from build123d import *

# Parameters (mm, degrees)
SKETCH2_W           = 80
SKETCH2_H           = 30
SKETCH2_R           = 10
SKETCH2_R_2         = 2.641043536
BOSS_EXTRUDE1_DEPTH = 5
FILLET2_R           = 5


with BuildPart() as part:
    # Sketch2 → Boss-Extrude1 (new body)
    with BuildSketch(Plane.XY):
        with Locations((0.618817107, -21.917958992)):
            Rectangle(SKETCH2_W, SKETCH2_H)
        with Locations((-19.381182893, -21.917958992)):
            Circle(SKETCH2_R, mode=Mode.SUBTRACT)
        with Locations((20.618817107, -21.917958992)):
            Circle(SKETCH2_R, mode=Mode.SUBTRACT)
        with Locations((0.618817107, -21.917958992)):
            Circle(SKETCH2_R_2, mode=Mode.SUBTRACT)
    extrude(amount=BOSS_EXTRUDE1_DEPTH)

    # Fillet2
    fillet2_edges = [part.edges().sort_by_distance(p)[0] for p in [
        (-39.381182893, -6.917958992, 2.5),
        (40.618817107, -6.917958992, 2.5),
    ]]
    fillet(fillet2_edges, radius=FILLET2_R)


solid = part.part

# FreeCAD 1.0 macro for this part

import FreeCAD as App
import Part
import Sketcher

V = App.Vector


def edges_at(feature, points):
    """Names of the edges that pass closest to the given points."""
    edges = feature.Shape.Edges
    near = lambda p: min(range(len(edges)), key=lambda i: edges[i].distToShape(Part.Vertex(*p))[0])
    return sorted({f"Edge{near(p) + 1}" for p in points})


def add_polygon(sketch, points):
    """Adds a closed chain of lines whose ends are joined by coincident constraints."""
    first, n = sketch.GeometryCount, len(points)
    for a, b in zip(points, points[1:] + points[:1]):
        sketch.addGeometry(Part.LineSegment(App.Vector(*a, 0), App.Vector(*b, 0)), False)
    for i in range(n):
        sketch.addConstraint(Sketcher.Constraint("Coincident", first + i, 2, first + (i + 1) % n, 1))

doc = App.newDocument("Part")
params = doc.addObject("Spreadsheet::Sheet", "Params")
for row, (alias, value) in enumerate([
    ("sketch1_diameter", "20 mm"),
    ("sketch1_width", "80 mm"),
    ("sketch1_height", "30 mm"),
    ("pad1_length", "5 mm"),
    ("fillet_radius", "5 mm"),
], start=1):
    params.set(f"A{row}", alias)
    params.set(f"B{row}", "=" + value)
    params.setAlias(f"B{row}", alias)

body = doc.addObject("PartDesign::Body", "Body")

# Sketch on XY plane
sketch1 = doc.addObject("Sketcher::SketchObject", "Sketch")
body.addObject(sketch1)
sketch1.AttachmentSupport = (doc.XY_Plane, [""])
sketch1.MapMode = "FlatFace"
add_polygon(sketch1, [(-39.4, -6.9), (-39.4, -36.9), (40.6, -36.9), (40.6, -6.9)])  # lines 0-3
sketch1.addGeometry(Part.Circle(V(-19.4, -21.9, 0), V(0, 0, 1), 10), False)  # 4
sketch1.addGeometry(Part.Circle(V(0.6, -21.9, 0), V(0, 0, 1), 2.6), False)  # 5
sketch1.addGeometry(Part.Circle(V(20.6, -21.9, 0), V(0, 0, 1), 10), False)  # 6
sketch1.addConstraint([
    Sketcher.Constraint("Vertical", 0),
    Sketcher.Constraint("Horizontal", 1),
    Sketcher.Constraint("Vertical", 2),
    Sketcher.Constraint("Horizontal", 3),
    Sketcher.Constraint("Equal", 4, 6),
    Sketcher.Constraint("Horizontal", 4, 3, 5, 3),
    Sketcher.Constraint("Horizontal", 5, 3, 6, 3),
    Sketcher.Constraint("Diameter", 4, 20.0),
    Sketcher.Constraint("DistanceX", 1, 1, 1, 2, 80.0),
    Sketcher.Constraint("DistanceY", 0, 2, 0, 1, 30.0),
    Sketcher.Constraint("DistanceX", 4, 3, 5, 3, 20.0),
    Sketcher.Constraint("DistanceX", 5, 3, 6, 3, 20.0),
    Sketcher.Constraint("DistanceX", 0, 2, 4, 3, 20.0),
    Sketcher.Constraint("DistanceY", 0, 2, 4, 3, 15.0),
    Sketcher.Constraint("Diameter", 5, 5.282087),
    Sketcher.Constraint("DistanceY", 4, 3, -1, 1, 21.917959),
    Sketcher.Constraint("DistanceX", 4, 3, -1, 1, 19.381183),
])
sketch1.setExpression("Constraints[11]", "Params.sketch1_diameter")
sketch1.setExpression("Constraints[12]", "Params.sketch1_width")
sketch1.setExpression("Constraints[13]", "Params.sketch1_height")
pad1 = doc.addObject("PartDesign::Pad", "Pad")
body.addObject(pad1)
pad1.Profile = sketch1
pad1.setExpression("Length", "Params.pad1_length")
doc.recompute()

fillet = doc.addObject("PartDesign::Fillet", "Fillet")
body.addObject(fillet)
fillet.Base = (pad1, edges_at(pad1, [(-39.381, -6.918, 2.5), (40.619, -6.918, 2.5)]))
fillet.setExpression("Radius", "Params.fillet_radius")

doc.recompute()
